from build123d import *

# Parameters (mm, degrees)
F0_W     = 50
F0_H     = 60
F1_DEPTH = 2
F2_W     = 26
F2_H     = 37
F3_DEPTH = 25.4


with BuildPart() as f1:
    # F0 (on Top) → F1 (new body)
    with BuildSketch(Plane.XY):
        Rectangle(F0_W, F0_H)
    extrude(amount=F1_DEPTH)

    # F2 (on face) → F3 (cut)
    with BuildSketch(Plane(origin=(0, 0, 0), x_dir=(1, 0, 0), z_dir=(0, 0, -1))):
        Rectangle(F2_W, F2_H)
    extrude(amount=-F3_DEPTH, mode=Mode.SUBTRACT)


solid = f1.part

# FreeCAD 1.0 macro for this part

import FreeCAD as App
import Part
import Sketcher


def add_polygon(sketch, points):
    """Adds a closed chain of lines whose ends are joined by coincident constraints."""
    first, n = sketch.GeometryCount, len(points)
    for a, b in zip(points, points[1:] + points[:1]):
        sketch.addGeometry(Part.LineSegment(App.Vector(*a, 0), App.Vector(*b, 0)), False)
    for i in range(n):
        sketch.addConstraint(Sketcher.Constraint("Coincident", first + i, 2, first + (i + 1) % n, 1))

doc = App.newDocument("Part")
body = doc.addObject("PartDesign::Body", "Body")

# Sketch on XY plane
sketch1 = doc.addObject("Sketcher::SketchObject", "Sketch")
body.addObject(sketch1)
sketch1.AttachmentSupport = (doc.XY_Plane, [""])
sketch1.MapMode = "FlatFace"
add_polygon(sketch1, [(-25, 30), (-25, -30), (25, -30), (25, 30)])  # lines 0-3
sketch1.addConstraint([
    Sketcher.Constraint("Vertical", 0),
    Sketcher.Constraint("Horizontal", 1),
    Sketcher.Constraint("Vertical", 2),
    Sketcher.Constraint("Horizontal", 3),
    Sketcher.Constraint("Symmetric", 0, 2, 2, 2, -1, 1),
    Sketcher.Constraint("DistanceX", 1, 1, 1, 2, 50.0),
    Sketcher.Constraint("DistanceY", 0, 2, 0, 1, 60.0),
])
pad1 = doc.addObject("PartDesign::Pad", "Pad")
body.addObject(pad1)
pad1.Profile = sketch1
pad1.Length = 2

# Sketch on XY plane
sketch2 = doc.addObject("Sketcher::SketchObject", "Sketch001")
body.addObject(sketch2)
sketch2.AttachmentSupport = (doc.XY_Plane, [""])
sketch2.MapMode = "FlatFace"
add_polygon(sketch2, [(-13, -18), (-13, 18), (13, 18), (13, -18)])  # lines 0-3
sketch2.addConstraint([
    Sketcher.Constraint("Vertical", 0),
    Sketcher.Constraint("Horizontal", 1),
    Sketcher.Constraint("Vertical", 2),
    Sketcher.Constraint("Horizontal", 3),
    Sketcher.Constraint("Symmetric", 0, 2, 2, 2, -1, 1),
    Sketcher.Constraint("DistanceX", 1, 1, 1, 2, 26.0),
    Sketcher.Constraint("DistanceY", 0, 1, 0, 2, 37.0),
])
pocket1 = doc.addObject("PartDesign::Pocket", "Pocket")
body.addObject(pocket1)
pocket1.Profile = sketch2
pocket1.Length = 25.4
pocket1.Reversed = True

doc.recompute()
